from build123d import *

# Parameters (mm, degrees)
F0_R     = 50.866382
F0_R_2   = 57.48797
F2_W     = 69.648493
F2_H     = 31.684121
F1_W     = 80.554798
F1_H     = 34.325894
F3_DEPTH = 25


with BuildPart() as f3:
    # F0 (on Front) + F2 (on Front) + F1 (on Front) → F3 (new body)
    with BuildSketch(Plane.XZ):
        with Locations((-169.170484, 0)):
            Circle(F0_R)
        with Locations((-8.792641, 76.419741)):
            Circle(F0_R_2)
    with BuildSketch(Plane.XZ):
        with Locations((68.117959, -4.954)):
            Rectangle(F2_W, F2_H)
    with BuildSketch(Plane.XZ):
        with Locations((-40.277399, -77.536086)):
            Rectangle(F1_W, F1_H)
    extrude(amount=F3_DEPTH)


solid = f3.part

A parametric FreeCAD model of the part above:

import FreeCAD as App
import Part
import Sketcher

V = App.Vector
Q = App.Units.Quantity


def add_polygon(sketch, points):
    """Adds a closed chain of lines whose ends are joined by coincident constraints."""
    first, n = sketch.GeometryCount, len(points)
    for a, b in zip(points, points[1:] + points[:1]):
        sketch.addGeometry(Part.LineSegment(App.Vector(*a, 0), App.Vector(*b, 0)), False)
    for i in range(n):
        sketch.addConstraint(Sketcher.Constraint("Coincident", first + i, 2, first + (i + 1) % n, 1))

doc = App.newDocument("Part")
body = doc.addObject("PartDesign::Body", "Body")
body.AllowCompound = True

sketch1 = body.newObject("Sketcher::SketchObject", "Sketch")
sketch1.AttachmentSupport = (doc.getObject("XZ_Plane"), [""])
sketch1.MapMode = "FlatFace"
sketch1.addGeometry(Part.Circle(V(-169, 0, 0), V(0, 0, 1), 51), False)
sketch1.addGeometry(Part.Circle(V(-9, 76, 0), V(0, 0, 1), 57), False)
add_polygon(sketch1, [(33, 11), (33, -21), (103, -21), (103, 11)])
add_polygon(sketch1, [(-81, -60), (-81, -95), (0, -95), (0, -60)])
sketch1.addConstraint([
    Sketcher.Constraint("Vertical", 2),
    Sketcher.Constraint("Horizontal", 3),
    Sketcher.Constraint("Vertical", 4),
    Sketcher.Constraint("Horizontal", 5),
    Sketcher.Constraint("Vertical", 6),
    Sketcher.Constraint("Horizontal", 7),
    Sketcher.Constraint("Vertical", 8),
    Sketcher.Constraint("Horizontal", 9),
    Sketcher.Constraint("PointOnObject", 0, 3, -1),
    Sketcher.Constraint("PointOnObject", 7, 2, -2),
    Sketcher.Constraint("Diameter", 1, Q("114.97594 mm")),
    Sketcher.Constraint("Diameter", 0, Q("101.732764 mm")),
    Sketcher.Constraint("DistanceX", 7, 1, 7, 2, Q("80.554798 mm")),
    Sketcher.Constraint("DistanceY", 2, 2, 2, 1, Q("31.684121 mm")),
    Sketcher.Constraint("DistanceY", 2, 2, 1, 3, Q("97.215801 mm")),
    Sketcher.Constraint("DistanceY", 8, 2, 5, 2, Q("71.2612 mm")),
    Sketcher.Constraint("DistanceX", 3, 1, 3, 2, Q("69.648493 mm")),
    Sketcher.Constraint("DistanceY", 6, 2, 6, 1, Q("34.325894 mm")),
    Sketcher.Constraint("DistanceX", 1, 3, -1, 1, Q("8.792641 mm")),
    Sketcher.Constraint("DistanceY", -1, 1, 1, 3, Q("76.419741 mm")),
    Sketcher.Constraint("DistanceX", 0, 3, 3, 2, Q("272.112689 mm")),
    Sketcher.Constraint("DistanceX", 6, 2, 2, 2, Q("113.848511 mm")),
])
pad1 = body.newObject("PartDesign::Pad", "Pad")
pad1.Profile = sketch1
pad1.Length = 25

doc.recompute()
